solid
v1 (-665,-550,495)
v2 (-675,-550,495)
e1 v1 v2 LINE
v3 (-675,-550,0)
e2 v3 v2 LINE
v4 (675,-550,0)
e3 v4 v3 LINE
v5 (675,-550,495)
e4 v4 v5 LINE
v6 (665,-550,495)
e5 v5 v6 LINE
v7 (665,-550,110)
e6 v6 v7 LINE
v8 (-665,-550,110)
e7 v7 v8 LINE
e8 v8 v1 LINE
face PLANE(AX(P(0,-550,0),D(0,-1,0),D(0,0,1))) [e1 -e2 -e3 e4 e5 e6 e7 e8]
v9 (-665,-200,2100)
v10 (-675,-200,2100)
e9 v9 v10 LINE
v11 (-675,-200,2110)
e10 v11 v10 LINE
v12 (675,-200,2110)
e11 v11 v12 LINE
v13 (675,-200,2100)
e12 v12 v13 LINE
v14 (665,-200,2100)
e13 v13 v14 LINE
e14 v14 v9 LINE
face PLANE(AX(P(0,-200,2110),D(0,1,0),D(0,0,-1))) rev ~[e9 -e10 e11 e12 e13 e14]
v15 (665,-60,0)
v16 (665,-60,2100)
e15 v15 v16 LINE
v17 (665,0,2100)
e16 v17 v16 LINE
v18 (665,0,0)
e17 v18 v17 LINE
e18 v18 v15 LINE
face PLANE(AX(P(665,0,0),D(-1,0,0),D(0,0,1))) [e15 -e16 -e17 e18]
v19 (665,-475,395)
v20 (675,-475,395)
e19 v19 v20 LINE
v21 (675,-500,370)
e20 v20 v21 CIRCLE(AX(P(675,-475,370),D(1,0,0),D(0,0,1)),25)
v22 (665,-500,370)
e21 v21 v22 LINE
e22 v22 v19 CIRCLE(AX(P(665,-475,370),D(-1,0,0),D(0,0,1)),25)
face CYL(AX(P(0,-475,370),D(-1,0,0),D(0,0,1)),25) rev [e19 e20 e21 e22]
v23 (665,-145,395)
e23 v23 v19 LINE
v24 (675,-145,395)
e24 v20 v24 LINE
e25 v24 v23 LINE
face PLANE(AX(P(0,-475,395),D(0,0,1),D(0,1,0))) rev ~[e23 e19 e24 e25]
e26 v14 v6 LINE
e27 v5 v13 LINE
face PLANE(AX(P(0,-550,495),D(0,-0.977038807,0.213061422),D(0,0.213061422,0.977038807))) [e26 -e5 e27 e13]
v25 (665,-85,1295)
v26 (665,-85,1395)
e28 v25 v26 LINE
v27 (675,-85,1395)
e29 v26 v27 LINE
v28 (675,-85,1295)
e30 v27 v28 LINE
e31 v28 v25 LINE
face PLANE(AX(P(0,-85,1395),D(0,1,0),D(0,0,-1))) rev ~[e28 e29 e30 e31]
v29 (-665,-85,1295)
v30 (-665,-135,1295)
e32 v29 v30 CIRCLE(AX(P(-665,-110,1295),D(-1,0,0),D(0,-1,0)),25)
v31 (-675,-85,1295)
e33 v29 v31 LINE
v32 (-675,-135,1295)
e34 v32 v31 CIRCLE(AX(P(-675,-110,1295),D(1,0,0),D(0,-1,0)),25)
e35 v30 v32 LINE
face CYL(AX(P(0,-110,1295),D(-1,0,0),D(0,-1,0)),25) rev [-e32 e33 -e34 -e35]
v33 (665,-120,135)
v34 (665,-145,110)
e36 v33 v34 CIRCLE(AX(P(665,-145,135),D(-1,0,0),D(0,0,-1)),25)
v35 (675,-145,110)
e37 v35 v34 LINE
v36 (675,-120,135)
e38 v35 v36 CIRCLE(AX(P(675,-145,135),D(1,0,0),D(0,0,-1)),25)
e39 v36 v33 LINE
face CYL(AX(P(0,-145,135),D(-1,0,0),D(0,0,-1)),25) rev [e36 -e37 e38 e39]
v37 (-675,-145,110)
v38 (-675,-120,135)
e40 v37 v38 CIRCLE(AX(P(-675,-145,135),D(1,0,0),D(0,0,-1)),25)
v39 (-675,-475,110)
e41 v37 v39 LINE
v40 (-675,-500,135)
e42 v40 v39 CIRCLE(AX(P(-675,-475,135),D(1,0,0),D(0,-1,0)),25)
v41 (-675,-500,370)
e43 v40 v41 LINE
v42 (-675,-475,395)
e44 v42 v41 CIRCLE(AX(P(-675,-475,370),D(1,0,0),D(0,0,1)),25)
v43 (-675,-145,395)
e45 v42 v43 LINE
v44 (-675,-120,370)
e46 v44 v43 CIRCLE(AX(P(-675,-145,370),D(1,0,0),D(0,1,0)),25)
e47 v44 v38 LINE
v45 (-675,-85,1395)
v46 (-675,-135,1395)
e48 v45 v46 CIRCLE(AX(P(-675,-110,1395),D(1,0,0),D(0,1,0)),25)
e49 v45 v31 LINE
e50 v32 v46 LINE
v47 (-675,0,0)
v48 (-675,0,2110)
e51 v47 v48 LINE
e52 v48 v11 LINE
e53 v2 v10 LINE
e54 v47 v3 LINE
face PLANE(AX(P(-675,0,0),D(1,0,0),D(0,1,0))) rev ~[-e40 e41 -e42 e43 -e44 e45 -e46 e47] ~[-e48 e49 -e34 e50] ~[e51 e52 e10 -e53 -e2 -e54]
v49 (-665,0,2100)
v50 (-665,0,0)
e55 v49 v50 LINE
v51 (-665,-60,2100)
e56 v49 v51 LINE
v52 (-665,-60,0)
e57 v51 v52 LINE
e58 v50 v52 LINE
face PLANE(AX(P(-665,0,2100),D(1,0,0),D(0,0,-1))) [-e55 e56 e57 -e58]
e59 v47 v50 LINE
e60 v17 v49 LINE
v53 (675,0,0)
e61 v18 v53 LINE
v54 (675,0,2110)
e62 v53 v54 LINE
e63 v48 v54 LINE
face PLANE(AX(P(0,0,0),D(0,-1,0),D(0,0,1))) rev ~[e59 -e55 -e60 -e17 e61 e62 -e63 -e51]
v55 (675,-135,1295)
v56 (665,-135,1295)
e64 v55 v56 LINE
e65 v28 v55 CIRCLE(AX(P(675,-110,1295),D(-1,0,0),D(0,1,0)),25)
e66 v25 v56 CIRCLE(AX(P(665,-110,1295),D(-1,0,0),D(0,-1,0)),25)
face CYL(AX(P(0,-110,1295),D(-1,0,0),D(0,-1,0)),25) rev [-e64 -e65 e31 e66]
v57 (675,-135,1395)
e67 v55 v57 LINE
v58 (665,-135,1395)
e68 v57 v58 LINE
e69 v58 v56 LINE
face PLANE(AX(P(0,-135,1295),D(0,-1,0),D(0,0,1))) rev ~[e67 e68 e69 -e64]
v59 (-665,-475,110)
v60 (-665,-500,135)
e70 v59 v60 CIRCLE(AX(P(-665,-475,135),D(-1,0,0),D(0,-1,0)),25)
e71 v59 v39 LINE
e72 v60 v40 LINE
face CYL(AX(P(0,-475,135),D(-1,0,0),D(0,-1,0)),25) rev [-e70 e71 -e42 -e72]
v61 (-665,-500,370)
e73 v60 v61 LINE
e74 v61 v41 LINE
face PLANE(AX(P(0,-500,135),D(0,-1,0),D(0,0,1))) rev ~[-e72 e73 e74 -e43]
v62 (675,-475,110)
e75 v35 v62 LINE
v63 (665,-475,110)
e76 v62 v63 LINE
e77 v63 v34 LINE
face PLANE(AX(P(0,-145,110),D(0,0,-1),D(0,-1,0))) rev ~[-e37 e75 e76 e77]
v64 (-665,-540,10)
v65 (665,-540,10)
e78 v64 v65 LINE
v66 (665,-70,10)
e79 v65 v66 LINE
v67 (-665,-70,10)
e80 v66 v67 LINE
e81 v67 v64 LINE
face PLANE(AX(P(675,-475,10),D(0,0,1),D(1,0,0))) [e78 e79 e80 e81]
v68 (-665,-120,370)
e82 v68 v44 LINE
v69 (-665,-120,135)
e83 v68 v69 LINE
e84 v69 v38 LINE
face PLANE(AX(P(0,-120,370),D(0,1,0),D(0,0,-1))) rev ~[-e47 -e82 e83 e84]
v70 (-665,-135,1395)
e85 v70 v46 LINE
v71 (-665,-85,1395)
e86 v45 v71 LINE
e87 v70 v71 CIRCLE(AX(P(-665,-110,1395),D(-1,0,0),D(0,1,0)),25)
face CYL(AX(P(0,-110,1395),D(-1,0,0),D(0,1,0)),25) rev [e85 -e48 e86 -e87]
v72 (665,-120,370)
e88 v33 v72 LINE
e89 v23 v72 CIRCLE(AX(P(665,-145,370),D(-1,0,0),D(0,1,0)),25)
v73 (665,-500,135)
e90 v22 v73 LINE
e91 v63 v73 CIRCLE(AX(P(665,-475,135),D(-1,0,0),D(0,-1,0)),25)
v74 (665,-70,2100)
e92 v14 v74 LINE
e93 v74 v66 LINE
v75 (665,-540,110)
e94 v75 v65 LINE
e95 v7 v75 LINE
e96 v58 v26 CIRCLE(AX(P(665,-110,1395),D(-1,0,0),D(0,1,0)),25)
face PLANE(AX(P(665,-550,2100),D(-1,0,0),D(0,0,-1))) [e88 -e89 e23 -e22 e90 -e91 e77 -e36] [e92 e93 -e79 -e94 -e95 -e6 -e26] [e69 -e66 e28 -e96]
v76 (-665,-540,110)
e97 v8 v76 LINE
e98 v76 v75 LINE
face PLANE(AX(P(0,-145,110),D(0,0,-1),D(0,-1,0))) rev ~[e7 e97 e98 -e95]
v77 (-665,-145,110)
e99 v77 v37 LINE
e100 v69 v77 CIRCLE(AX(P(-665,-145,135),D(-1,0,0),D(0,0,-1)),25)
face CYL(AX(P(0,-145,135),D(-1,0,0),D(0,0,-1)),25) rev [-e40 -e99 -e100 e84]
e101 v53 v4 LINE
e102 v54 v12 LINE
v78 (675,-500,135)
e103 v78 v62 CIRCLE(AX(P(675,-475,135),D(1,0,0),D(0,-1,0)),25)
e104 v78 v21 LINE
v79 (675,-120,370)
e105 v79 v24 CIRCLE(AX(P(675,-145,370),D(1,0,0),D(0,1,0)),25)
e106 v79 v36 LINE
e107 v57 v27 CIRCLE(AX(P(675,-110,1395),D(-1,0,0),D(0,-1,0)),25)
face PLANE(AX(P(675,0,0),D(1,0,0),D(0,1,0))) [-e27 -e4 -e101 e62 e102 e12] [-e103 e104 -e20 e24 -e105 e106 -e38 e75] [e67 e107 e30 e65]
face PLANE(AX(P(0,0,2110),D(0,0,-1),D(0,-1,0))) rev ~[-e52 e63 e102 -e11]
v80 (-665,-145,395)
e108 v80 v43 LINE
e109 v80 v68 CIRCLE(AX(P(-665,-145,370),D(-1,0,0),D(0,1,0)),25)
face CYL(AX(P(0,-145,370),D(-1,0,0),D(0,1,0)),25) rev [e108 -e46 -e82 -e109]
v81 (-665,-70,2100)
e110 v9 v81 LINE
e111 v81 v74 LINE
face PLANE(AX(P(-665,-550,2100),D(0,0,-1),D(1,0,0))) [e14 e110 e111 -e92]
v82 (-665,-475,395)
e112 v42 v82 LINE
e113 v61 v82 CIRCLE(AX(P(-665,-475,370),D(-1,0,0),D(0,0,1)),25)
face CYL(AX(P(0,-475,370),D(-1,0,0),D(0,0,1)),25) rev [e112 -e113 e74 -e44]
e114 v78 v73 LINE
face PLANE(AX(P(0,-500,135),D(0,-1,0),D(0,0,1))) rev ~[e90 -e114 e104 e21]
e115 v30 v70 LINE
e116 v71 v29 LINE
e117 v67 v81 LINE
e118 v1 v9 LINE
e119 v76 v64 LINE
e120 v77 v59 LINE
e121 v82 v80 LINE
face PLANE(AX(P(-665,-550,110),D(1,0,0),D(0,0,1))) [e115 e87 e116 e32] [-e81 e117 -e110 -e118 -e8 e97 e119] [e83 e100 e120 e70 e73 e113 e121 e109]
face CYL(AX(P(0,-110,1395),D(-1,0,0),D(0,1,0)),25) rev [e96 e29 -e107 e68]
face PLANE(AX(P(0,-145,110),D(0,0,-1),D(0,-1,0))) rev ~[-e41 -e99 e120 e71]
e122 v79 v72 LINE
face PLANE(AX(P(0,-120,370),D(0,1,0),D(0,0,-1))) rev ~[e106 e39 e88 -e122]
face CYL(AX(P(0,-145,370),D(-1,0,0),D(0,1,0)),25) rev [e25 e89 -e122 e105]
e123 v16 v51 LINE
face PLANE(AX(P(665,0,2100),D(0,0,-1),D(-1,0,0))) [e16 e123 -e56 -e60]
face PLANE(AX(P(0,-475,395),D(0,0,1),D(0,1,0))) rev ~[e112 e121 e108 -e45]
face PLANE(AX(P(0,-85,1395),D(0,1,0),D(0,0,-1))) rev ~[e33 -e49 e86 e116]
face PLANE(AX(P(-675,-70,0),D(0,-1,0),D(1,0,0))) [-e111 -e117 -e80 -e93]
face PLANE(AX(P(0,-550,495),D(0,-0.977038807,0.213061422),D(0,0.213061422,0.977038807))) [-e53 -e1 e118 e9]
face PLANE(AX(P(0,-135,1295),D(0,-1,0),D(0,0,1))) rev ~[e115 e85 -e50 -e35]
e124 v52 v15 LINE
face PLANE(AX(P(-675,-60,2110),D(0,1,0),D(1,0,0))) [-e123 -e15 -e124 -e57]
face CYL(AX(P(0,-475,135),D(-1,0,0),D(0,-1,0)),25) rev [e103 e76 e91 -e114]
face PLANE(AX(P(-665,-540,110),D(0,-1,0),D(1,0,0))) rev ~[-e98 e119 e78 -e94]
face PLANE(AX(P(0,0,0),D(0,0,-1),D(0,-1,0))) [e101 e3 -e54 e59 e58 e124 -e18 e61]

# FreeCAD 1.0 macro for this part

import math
import FreeCAD as App
import Part
import Sketcher
from FreeCAD import Vector
Q = App.Units.Quantity

doc = App.newDocument("Part")
body = doc.addObject("PartDesign::Body", "Body")

# Sketch on YZ plane
sketch1 = body.newObject("Sketcher::SketchObject", "Sketch")
sketch1.AttachmentSupport = (doc.getObject("YZ_Plane"), [""])
sketch1.MapMode = "FlatFace"
sketch1.addGeometry(Part.LineSegment(Vector(-550, 0, 0), Vector(0, 0, 0)), False)
sketch1.addGeometry(Part.LineSegment(Vector(0, 0, 0), Vector(0, 2110, 0)), False)
sketch1.addGeometry(Part.LineSegment(Vector(0, 2110, 0), Vector(-200, 2110, 0)), False)
sketch1.addGeometry(Part.LineSegment(Vector(-200, 2110, 0), Vector(-200, 2100, 0)), False)
sketch1.addGeometry(Part.LineSegment(Vector(-200, 2100, 0), Vector(-550, 495, 0)), False)
sketch1.addGeometry(Part.LineSegment(Vector(-550, 495, 0), Vector(-550, 0, 0)), False)
sketch1.addGeometry(Part.ArcOfCircle(Part.Circle(Vector(-475, 370, 0), Vector(0, 0, 1), 25), math.radians(90), math.radians(180)), False)
sketch1.addGeometry(Part.LineSegment(Vector(-475, 395, 0), Vector(-145, 395, 0)), False)
sketch1.addGeometry(Part.ArcOfCircle(Part.Circle(Vector(-145, 370, 0), Vector(0, 0, 1), 25), math.radians(0), math.radians(90)), False)
sketch1.addGeometry(Part.LineSegment(Vector(-120, 370, 0), Vector(-120, 135, 0)), False)
sketch1.addGeometry(Part.ArcOfCircle(Part.Circle(Vector(-145, 135, 0), Vector(0, 0, 1), 25), math.radians(-90), math.radians(0)), False)
sketch1.addGeometry(Part.LineSegment(Vector(-145, 110, 0), Vector(-475, 110, 0)), False)
sketch1.addGeometry(Part.ArcOfCircle(Part.Circle(Vector(-475, 135, 0), Vector(0, 0, 1), 25), math.radians(180), math.radians(270)), False)
sketch1.addGeometry(Part.LineSegment(Vector(-500, 135, 0), Vector(-500, 370, 0)), False)
sketch1.addGeometry(Part.ArcOfCircle(Part.Circle(Vector(-110, 1395, 0), Vector(0, 0, 1), 25), math.radians(0), math.radians(180)), False)
sketch1.addGeometry(Part.LineSegment(Vector(-85, 1395, 0), Vector(-85, 1295, 0)), False)
sketch1.addGeometry(Part.ArcOfCircle(Part.Circle(Vector(-110, 1295, 0), Vector(0, 0, 1), 25), math.radians(180), math.radians(360)), False)
sketch1.addGeometry(Part.LineSegment(Vector(-135, 1295, 0), Vector(-135, 1395, 0)), False)
sketch1.addConstraint(Sketcher.Constraint("Coincident", 0, 2, 1, 1))
sketch1.addConstraint(Sketcher.Constraint("Coincident", 1, 2, 2, 1))
sketch1.addConstraint(Sketcher.Constraint("Coincident", 2, 2, 3, 1))
sketch1.addConstraint(Sketcher.Constraint("Coincident", 3, 2, 4, 1))
sketch1.addConstraint(Sketcher.Constraint("Coincident", 4, 2, 5, 1))
sketch1.addConstraint(Sketcher.Constraint("Coincident", 5, 2, 0, 1))
sketch1.addConstraint(Sketcher.Constraint("Tangent", 6, 1, 7, 1))
sketch1.addConstraint(Sketcher.Constraint("Tangent", 7, 2, 8, 2))
sketch1.addConstraint(Sketcher.Constraint("Tangent", 8, 1, 9, 1))
sketch1.addConstraint(Sketcher.Constraint("Tangent", 9, 2, 10, 2))
sketch1.addConstraint(Sketcher.Constraint("Tangent", 10, 1, 11, 1))
sketch1.addConstraint(Sketcher.Constraint("Tangent", 11, 2, 12, 2))
sketch1.addConstraint(Sketcher.Constraint("Tangent", 12, 1, 13, 1))
sketch1.addConstraint(Sketcher.Constraint("Tangent", 13, 2, 6, 2))
sketch1.addConstraint(Sketcher.Constraint("Tangent", 14, 1, 15, 1))
sketch1.addConstraint(Sketcher.Constraint("Tangent", 15, 2, 16, 2))
sketch1.addConstraint(Sketcher.Constraint("Tangent", 16, 1, 17, 1))
sketch1.addConstraint(Sketcher.Constraint("Tangent", 17, 2, 14, 2))
sketch1.addConstraint(Sketcher.Constraint("Horizontal", 0))
sketch1.addConstraint(Sketcher.Constraint("Vertical", 1))
sketch1.addConstraint(Sketcher.Constraint("Horizontal", 2))
sketch1.addConstraint(Sketcher.Constraint("Vertical", 3))
sketch1.addConstraint(Sketcher.Constraint("Vertical", 5))
sketch1.addConstraint(Sketcher.Constraint("Horizontal", 7))
sketch1.addConstraint(Sketcher.Constraint("Vertical", 9))
sketch1.addConstraint(Sketcher.Constraint("Horizontal", 11))
sketch1.addConstraint(Sketcher.Constraint("Vertical", 13))
sketch1.addConstraint(Sketcher.Constraint("Vertical", 15))
sketch1.addConstraint(Sketcher.Constraint("Vertical", 17))
sketch1.addConstraint(Sketcher.Constraint("Coincident", 0, 2, -1, 1))
sketch1.addConstraint(Sketcher.Constraint("Equal", 6, 8))
sketch1.addConstraint(Sketcher.Constraint("Equal", 8, 10))
sketch1.addConstraint(Sketcher.Constraint("Equal", 10, 12))
sketch1.addConstraint(Sketcher.Constraint("Equal", 12, 14))
sketch1.addConstraint(Sketcher.Constraint("Radius", 6, Q("25 mm")))
sketch1.addConstraint(Sketcher.Constraint("DistanceX", 0, 1, 0, 2, Q("550 mm")))
sketch1.addConstraint(Sketcher.Constraint("DistanceX", 2, 2, 2, 1, Q("200 mm")))
sketch1.addConstraint(Sketcher.Constraint("DistanceY", 1, 1, 1, 2, Q("2110 mm")))
sketch1.addConstraint(Sketcher.Constraint("DistanceY", 3, 2, 3, 1, Q("10 mm")))
sketch1.addConstraint(Sketcher.Constraint("DistanceY", 5, 2, 5, 1, Q("495 mm")))
sketch1.addConstraint(Sketcher.Constraint("DistanceX", 14, 3, -1, 1, Q("110 mm")))
sketch1.addConstraint(Sketcher.Constraint("DistanceX", 8, 1, -1, 1, Q("120 mm")))
sketch1.addConstraint(Sketcher.Constraint("DistanceY", -1, 1, 10, 1, Q("110 mm")))
sketch1.addConstraint(Sketcher.Constraint("DistanceY", 11, 2, 6, 1, Q("285 mm")))
sketch1.addConstraint(Sketcher.Constraint("DistanceX", 5, 2, 12, 1, Q("50 mm")))
sketch1.addConstraint(Sketcher.Constraint("DistanceY", 15, 2, 15, 1, Q("100 mm")))
sketch1.addConstraint(Sketcher.Constraint("DistanceY", -1, 1, 14, 3, Q("1395 mm")))
pad1 = body.newObject("PartDesign::Pad", "Pad")
pad1.Profile = sketch1
pad1.Length = 1350
pad1.Midplane = True

# Sketch on XZ plane
sketch2 = body.newObject("Sketcher::SketchObject", "Sketch001")
sketch2.AttachmentSupport = (doc.getObject("XZ_Plane"), [""])
sketch2.MapMode = "FlatFace"
sketch2.addGeometry(Part.LineSegment(Vector(-665, 2100, 0), Vector(665, 2100, 0)), False)
sketch2.addGeometry(Part.LineSegment(Vector(665, 2100, 0), Vector(665, 0, 0)), False)
sketch2.addGeometry(Part.LineSegment(Vector(665, 0, 0), Vector(-665, 0, 0)), False)
sketch2.addGeometry(Part.LineSegment(Vector(-665, 0, 0), Vector(-665, 2100, 0)), False)
sketch2.addConstraint(Sketcher.Constraint("Coincident", 0, 2, 1, 1))
sketch2.addConstraint(Sketcher.Constraint("Coincident", 1, 2, 2, 1))
sketch2.addConstraint(Sketcher.Constraint("Coincident", 2, 2, 3, 1))
sketch2.addConstraint(Sketcher.Constraint("Coincident", 3, 2, 0, 1))
sketch2.addConstraint(Sketcher.Constraint("Horizontal", 0))
sketch2.addConstraint(Sketcher.Constraint("Vertical", 1))
sketch2.addConstraint(Sketcher.Constraint("Horizontal", 2))
sketch2.addConstraint(Sketcher.Constraint("Vertical", 3))
sketch2.addConstraint(Sketcher.Constraint("Symmetric", 1, 2, 2, 2, -1, 1))
sketch2.addConstraint(Sketcher.Constraint("DistanceX", 0, 1, 0, 2, Q("1330 mm")))
sketch2.addConstraint(Sketcher.Constraint("DistanceY", 1, 2, 1, 1, Q("2100 mm")))
pocket1 = body.newObject("PartDesign::Pocket", "Pocket")
pocket1.Profile = sketch2
pocket1.Length = 60
pocket1.Reversed = True

# Sketch on XZ plane
sketch3 = body.newObject("Sketcher::SketchObject", "Sketch002")
sketch3.AttachmentSupport = (doc.getObject("XZ_Plane"), [""])
sketch3.MapMode = "FlatFace"
sketch3.AttachmentOffset = App.Placement(Vector(0, 0, 550), App.Rotation())
sketch3.addGeometry(Part.LineSegment(Vector(665, 2100, 0), Vector(-665, 2100, 0)), False)
sketch3.addGeometry(Part.LineSegment(Vector(-665, 2100, 0), Vector(-665, 110, 0)), False)
sketch3.addGeometry(Part.LineSegment(Vector(-665, 110, 0), Vector(665, 110, 0)), False)
sketch3.addGeometry(Part.LineSegment(Vector(665, 110, 0), Vector(665, 2100, 0)), False)
sketch3.addConstraint(Sketcher.Constraint("Coincident", 0, 2, 1, 1))
sketch3.addConstraint(Sketcher.Constraint("Coincident", 1, 2, 2, 1))
sketch3.addConstraint(Sketcher.Constraint("Coincident", 2, 2, 3, 1))
sketch3.addConstraint(Sketcher.Constraint("Coincident", 3, 2, 0, 1))
sketch3.addConstraint(Sketcher.Constraint("Horizontal", 0))
sketch3.addConstraint(Sketcher.Constraint("Vertical", 1))
sketch3.addConstraint(Sketcher.Constraint("Horizontal", 2))
sketch3.addConstraint(Sketcher.Constraint("Vertical", 3))
sketch3.addConstraint(Sketcher.Constraint("DistanceY", -1, 1, 1, 2, Q("110 mm")))
sketch3.addConstraint(Sketcher.Constraint("DistanceX", 0, 2, 0, 1, Q("1330 mm")))
sketch3.addConstraint(Sketcher.Constraint("DistanceY", 1, 2, 1, 1, Q("1990 mm")))
sketch3.addConstraint(Sketcher.Constraint("DistanceX", 0, 2, -1, 1, Q("665 mm")))
pocket2 = body.newObject("PartDesign::Pocket", "Pocket001")
pocket2.Profile = sketch3
pocket2.Length = 480

# Sketch on XY plane
sketch4 = body.newObject("Sketcher::SketchObject", "Sketch003")
sketch4.AttachmentSupport = (doc.getObject("XY_Plane"), [""])
sketch4.MapMode = "FlatFace"
sketch4.AttachmentOffset = App.Placement(Vector(0, 0, 110), App.Rotation())
sketch4.addGeometry(Part.LineSegment(Vector(-665, -70, 0), Vector(-665, -540, 0)), False)
sketch4.addGeometry(Part.LineSegment(Vector(-665, -540, 0), Vector(665, -540, 0)), False)
sketch4.addGeometry(Part.LineSegment(Vector(665, -540, 0), Vector(665, -70, 0)), False)
sketch4.addGeometry(Part.LineSegment(Vector(665, -70, 0), Vector(-665, -70, 0)), False)
sketch4.addConstraint(Sketcher.Constraint("Coincident", 0, 2, 1, 1))
sketch4.addConstraint(Sketcher.Constraint("Coincident", 1, 2, 2, 1))
sketch4.addConstraint(Sketcher.Constraint("Coincident", 2, 2, 3, 1))
sketch4.addConstraint(Sketcher.Constraint("Coincident", 3, 2, 0, 1))
sketch4.addConstraint(Sketcher.Constraint("Vertical", 0))
sketch4.addConstraint(Sketcher.Constraint("Horizontal", 1))
sketch4.addConstraint(Sketcher.Constraint("Vertical", 2))
sketch4.addConstraint(Sketcher.Constraint("Horizontal", 3))
sketch4.addConstraint(Sketcher.Constraint("DistanceX", 1, 1, 1, 2, Q("1330 mm")))
sketch4.addConstraint(Sketcher.Constraint("DistanceY", 0, 2, 0, 1, Q("470 mm")))
sketch4.addConstraint(Sketcher.Constraint("DistanceX", 0, 2, -1, 1, Q("665 mm")))
sketch4.addConstraint(Sketcher.Constraint("DistanceY", 0, 2, -1, 1, Q("540 mm")))
pocket3 = body.newObject("PartDesign::Pocket", "Pocket002")
pocket3.Profile = sketch4
pocket3.Length = 100

doc.recompute()
